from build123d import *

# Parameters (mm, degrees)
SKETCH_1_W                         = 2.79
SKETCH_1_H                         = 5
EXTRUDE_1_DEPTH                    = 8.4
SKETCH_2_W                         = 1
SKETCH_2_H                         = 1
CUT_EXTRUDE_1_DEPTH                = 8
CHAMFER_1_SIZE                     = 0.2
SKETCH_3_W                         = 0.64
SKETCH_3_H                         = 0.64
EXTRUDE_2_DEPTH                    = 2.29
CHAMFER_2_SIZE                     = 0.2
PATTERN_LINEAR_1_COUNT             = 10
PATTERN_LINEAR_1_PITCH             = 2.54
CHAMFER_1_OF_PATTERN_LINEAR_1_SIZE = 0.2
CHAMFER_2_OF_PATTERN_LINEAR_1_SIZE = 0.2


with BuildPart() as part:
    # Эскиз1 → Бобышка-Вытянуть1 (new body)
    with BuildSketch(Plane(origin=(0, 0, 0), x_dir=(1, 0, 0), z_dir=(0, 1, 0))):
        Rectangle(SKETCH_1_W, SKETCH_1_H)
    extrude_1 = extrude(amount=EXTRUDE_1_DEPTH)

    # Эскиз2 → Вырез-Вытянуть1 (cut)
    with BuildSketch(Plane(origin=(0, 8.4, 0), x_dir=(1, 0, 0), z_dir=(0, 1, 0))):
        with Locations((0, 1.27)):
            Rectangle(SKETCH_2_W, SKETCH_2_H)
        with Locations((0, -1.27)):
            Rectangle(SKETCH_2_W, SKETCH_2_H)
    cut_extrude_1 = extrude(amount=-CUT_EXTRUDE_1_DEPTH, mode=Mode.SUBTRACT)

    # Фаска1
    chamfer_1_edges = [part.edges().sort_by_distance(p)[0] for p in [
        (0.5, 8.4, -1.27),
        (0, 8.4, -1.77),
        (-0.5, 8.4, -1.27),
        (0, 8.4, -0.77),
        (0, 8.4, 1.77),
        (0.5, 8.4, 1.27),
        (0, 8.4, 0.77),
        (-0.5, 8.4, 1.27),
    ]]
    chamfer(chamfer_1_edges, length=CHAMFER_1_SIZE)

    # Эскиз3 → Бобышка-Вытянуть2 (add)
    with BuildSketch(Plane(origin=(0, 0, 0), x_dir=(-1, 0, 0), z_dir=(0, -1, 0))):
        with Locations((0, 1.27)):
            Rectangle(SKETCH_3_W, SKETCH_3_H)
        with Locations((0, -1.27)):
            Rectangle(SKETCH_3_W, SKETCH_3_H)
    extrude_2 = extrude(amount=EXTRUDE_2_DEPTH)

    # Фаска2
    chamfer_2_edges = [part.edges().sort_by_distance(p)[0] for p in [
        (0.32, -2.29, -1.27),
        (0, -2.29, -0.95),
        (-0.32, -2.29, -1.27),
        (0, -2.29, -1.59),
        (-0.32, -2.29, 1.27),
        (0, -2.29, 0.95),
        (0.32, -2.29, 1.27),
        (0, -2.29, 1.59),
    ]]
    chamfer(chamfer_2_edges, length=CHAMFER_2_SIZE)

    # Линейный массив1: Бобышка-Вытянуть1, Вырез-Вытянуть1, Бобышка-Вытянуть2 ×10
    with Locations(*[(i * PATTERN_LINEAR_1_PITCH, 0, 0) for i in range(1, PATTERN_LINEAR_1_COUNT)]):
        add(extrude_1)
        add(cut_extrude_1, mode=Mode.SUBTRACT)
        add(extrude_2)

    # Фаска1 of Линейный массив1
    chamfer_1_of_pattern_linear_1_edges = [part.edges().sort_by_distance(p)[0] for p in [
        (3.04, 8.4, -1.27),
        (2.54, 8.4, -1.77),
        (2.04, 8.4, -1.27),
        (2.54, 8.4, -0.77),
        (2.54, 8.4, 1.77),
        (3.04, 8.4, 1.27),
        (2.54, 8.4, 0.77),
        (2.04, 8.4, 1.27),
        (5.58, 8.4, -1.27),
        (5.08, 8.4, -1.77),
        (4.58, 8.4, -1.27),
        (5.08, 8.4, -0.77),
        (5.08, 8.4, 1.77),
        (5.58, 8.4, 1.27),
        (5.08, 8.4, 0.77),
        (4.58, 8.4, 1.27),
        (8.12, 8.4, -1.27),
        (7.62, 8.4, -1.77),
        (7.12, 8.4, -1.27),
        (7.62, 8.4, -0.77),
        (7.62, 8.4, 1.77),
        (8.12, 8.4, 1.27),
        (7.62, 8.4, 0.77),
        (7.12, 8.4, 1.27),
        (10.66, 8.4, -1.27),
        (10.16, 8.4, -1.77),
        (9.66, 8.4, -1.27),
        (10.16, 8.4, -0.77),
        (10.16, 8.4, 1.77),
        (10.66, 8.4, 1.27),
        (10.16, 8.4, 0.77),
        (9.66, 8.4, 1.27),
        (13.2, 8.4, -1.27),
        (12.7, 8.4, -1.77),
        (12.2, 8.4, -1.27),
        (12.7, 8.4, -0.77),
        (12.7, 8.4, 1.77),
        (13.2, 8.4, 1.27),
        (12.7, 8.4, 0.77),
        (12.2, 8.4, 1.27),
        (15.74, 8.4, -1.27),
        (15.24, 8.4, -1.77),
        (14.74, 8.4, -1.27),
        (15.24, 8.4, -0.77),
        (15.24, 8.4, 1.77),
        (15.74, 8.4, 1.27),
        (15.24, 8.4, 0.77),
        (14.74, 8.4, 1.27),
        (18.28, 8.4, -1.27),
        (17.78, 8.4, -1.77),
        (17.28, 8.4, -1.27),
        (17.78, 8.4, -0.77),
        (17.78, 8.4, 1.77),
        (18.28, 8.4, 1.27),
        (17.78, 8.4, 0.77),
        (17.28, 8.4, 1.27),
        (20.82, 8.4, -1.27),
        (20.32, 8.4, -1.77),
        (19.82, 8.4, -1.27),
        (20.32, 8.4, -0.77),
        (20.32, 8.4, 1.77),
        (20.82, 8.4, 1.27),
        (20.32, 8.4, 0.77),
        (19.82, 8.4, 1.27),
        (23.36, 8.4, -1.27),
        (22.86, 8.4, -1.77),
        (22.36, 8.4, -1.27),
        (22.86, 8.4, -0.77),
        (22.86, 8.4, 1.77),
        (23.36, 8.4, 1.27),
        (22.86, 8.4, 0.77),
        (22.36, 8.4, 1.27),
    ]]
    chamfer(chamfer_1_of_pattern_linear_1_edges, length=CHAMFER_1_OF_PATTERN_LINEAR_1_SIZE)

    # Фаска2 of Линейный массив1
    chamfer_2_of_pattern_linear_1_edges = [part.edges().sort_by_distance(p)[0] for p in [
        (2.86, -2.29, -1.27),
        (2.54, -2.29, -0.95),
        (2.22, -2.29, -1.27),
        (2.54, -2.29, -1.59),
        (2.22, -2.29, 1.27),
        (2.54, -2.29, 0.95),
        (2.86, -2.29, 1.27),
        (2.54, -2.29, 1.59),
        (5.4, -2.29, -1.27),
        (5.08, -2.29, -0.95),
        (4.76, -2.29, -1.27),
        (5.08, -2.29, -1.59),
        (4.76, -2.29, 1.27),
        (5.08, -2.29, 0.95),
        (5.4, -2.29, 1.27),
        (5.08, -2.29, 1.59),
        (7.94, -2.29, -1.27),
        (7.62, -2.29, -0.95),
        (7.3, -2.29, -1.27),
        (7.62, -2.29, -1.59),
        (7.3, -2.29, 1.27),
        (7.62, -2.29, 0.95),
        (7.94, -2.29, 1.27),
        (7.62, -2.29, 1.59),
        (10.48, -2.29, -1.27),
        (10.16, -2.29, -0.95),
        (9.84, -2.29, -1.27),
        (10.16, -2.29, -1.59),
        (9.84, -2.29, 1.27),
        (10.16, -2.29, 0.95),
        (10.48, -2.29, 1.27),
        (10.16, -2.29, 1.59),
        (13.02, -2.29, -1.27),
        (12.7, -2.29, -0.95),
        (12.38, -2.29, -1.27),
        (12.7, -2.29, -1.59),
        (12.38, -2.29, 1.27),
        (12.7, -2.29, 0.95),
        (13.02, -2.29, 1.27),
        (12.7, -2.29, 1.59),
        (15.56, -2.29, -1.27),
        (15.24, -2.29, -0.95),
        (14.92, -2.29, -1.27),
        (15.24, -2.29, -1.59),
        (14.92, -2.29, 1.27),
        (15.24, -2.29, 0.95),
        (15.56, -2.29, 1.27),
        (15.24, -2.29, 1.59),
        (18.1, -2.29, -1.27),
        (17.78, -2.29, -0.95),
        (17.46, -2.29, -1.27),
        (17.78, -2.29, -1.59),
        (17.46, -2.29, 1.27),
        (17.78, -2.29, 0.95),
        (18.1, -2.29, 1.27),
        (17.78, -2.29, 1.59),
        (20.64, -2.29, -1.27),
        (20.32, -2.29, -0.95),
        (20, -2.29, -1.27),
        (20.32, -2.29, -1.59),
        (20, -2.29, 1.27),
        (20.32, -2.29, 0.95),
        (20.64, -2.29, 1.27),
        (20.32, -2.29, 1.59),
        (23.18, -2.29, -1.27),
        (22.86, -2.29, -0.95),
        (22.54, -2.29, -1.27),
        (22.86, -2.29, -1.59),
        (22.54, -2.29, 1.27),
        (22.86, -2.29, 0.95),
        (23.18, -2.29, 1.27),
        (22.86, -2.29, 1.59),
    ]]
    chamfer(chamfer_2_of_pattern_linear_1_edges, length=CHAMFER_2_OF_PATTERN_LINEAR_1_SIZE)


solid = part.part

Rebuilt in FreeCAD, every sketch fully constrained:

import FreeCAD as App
import Part
import Sketcher
from FreeCAD import Vector


def edges_at(feature, points):
    """Names of the edges that pass closest to the given points."""
    edges = feature.Shape.Edges
    near = lambda p: min(range(len(edges)), key=lambda i: edges[i].distToShape(Part.Vertex(*p))[0])
    return sorted({f"Edge{near(p) + 1}" for p in points})


def add_polygon(sketch, points):
    """Adds a closed chain of lines whose ends are joined by coincident constraints."""
    first, n = sketch.GeometryCount, len(points)
    for a, b in zip(points, points[1:] + points[:1]):
        sketch.addGeometry(Part.LineSegment(App.Vector(*a, 0), App.Vector(*b, 0)), False)
    for i in range(n):
        sketch.addConstraint(Sketcher.Constraint("Coincident", first + i, 2, first + (i + 1) % n, 1))

doc = App.newDocument("Part")
body = doc.addObject("PartDesign::Body", "Body")

# Sketch on XZ plane
sketch1 = body.newObject("Sketcher::SketchObject", "Sketch")
sketch1.AttachmentSupport = (doc.getObject("XZ_Plane"), [""])
sketch1.MapMode = "FlatFace"
add_polygon(sketch1, [(-1.4, -2.5), (-1.4, 2.5), (1.4, 2.5), (1.4, -2.5)])  # lines 0-3
sketch1.addConstraint(Sketcher.Constraint("Vertical", 0))
sketch1.addConstraint(Sketcher.Constraint("Horizontal", 1))
sketch1.addConstraint(Sketcher.Constraint("Vertical", 2))
sketch1.addConstraint(Sketcher.Constraint("Horizontal", 3))
sketch1.addConstraint(Sketcher.Constraint("Symmetric", 0, 2, 2, 2, -1, 1))
sketch1.addConstraint(Sketcher.Constraint("DistanceY", 0, 1, 0, 2, 5.0))
sketch1.addConstraint(Sketcher.Constraint("DistanceX", 1, 1, 1, 2, 2.79))
pad1 = body.newObject("PartDesign::Pad", "Pad")
pad1.Profile = sketch1
pad1.Length = 8.4
pad1.Reversed = True

# Sketch on XZ plane
sketch2 = body.newObject("Sketcher::SketchObject", "Sketch001")
sketch2.AttachmentSupport = (doc.getObject("XZ_Plane"), [""])
sketch2.MapMode = "FlatFace"
sketch2.AttachmentOffset = App.Placement(Vector(0, 0, -8.4), App.Rotation())
add_polygon(sketch2, [(-0.5, -1.8), (-0.5, -0.8), (0.5, -0.8), (0.5, -1.8)])  # lines 0-3
add_polygon(sketch2, [(-0.5, 0.8), (-0.5, 1.8), (0.5, 1.8), (0.5, 0.8)])  # lines 4-7
sketch2.addConstraint(Sketcher.Constraint("Vertical", 0))
sketch2.addConstraint(Sketcher.Constraint("Horizontal", 1))
sketch2.addConstraint(Sketcher.Constraint("Vertical", 2))
sketch2.addConstraint(Sketcher.Constraint("Horizontal", 3))
sketch2.addConstraint(Sketcher.Constraint("Vertical", 4))
sketch2.addConstraint(Sketcher.Constraint("Horizontal", 5))
sketch2.addConstraint(Sketcher.Constraint("Vertical", 6))
sketch2.addConstraint(Sketcher.Constraint("Horizontal", 7))
sketch2.addConstraint(Sketcher.Constraint("Symmetric", 2, 2, 4, 2, -1, 1))
sketch2.addConstraint(Sketcher.Constraint("Symmetric", 0, 2, 6, 2, -1, 1))
sketch2.addConstraint(Sketcher.Constraint("Vertical", 3, 2, 4, 2))
sketch2.addConstraint(Sketcher.Constraint("Equal", 7, 0))
sketch2.addConstraint(Sketcher.Constraint("DistanceX", 1, 1, 1, 2, 1.0))
sketch2.addConstraint(Sketcher.Constraint("DistanceY", 0, 2, -1, 1, 0.77))
pocket1 = body.newObject("PartDesign::Pocket", "Pocket")
pocket1.Profile = sketch2
pocket1.Length = 8
pocket1.Reversed = True
doc.recompute()

chamfer = body.newObject("PartDesign::Chamfer", "Chamfer")
chamfer.Base = (pocket1, edges_at(pocket1, [
    (0.5, 8.4, -1.27),
    (0, 8.4, -1.77),
    (-0.5, 8.4, -1.27),
    (0, 8.4, -0.77),
    (0, 8.4, 1.77),
    (0.5, 8.4, 1.27),
    (0, 8.4, 0.77),
    (-0.5, 8.4, 1.27),
]))
chamfer.Size = 0.2

# Sketch on XZ plane
sketch3 = body.newObject("Sketcher::SketchObject", "Sketch002")
sketch3.AttachmentSupport = (doc.getObject("XZ_Plane"), [""])
sketch3.MapMode = "FlatFace"
add_polygon(sketch3, [(0.3, -1.6), (0.3, -0.9), (-0.3, -0.9), (-0.3, -1.6)])  # lines 0-3
add_polygon(sketch3, [(0.3, 0.9), (0.3, 1.6), (-0.3, 1.6), (-0.3, 0.9)])  # lines 4-7
sketch3.addConstraint(Sketcher.Constraint("Vertical", 0))
sketch3.addConstraint(Sketcher.Constraint("Horizontal", 1))
sketch3.addConstraint(Sketcher.Constraint("Vertical", 2))
sketch3.addConstraint(Sketcher.Constraint("Horizontal", 3))
sketch3.addConstraint(Sketcher.Constraint("Vertical", 4))
sketch3.addConstraint(Sketcher.Constraint("Horizontal", 5))
sketch3.addConstraint(Sketcher.Constraint("Vertical", 6))
sketch3.addConstraint(Sketcher.Constraint("Horizontal", 7))
sketch3.addConstraint(Sketcher.Constraint("Symmetric", 2, 2, 4, 2, -1, 1))
sketch3.addConstraint(Sketcher.Constraint("Symmetric", 0, 2, 6, 2, -1, 1))
sketch3.addConstraint(Sketcher.Constraint("Vertical", 3, 2, 4, 2))
sketch3.addConstraint(Sketcher.Constraint("Equal", 7, 0))
sketch3.addConstraint(Sketcher.Constraint("DistanceX", 1, 2, 1, 1, 0.64))
sketch3.addConstraint(Sketcher.Constraint("DistanceY", 1, 2, 6, 2, 1.9))
pad2 = body.newObject("PartDesign::Pad", "Pad001")
pad2.Profile = sketch3
pad2.Length = 2.29
doc.recompute()

chamfer2 = body.newObject("PartDesign::Chamfer", "Chamfer001")
chamfer2.Base = (pad2, edges_at(pad2, [
    (0.32, -2.29, -1.27),
    (0, -2.29, -0.95),
    (-0.32, -2.29, -1.27),
    (0, -2.29, -1.59),
    (-0.32, -2.29, 1.27),
    (0, -2.29, 0.95),
    (0.32, -2.29, 1.27),
    (0, -2.29, 1.59),
]))
chamfer2.Size = 0.2
doc.recompute()

linearpattern = body.newObject("PartDesign::LinearPattern", "LinearPattern")
linearpattern.Originals = [pad1, pocket1, pad2]
linearpattern.Direction = (doc.getObject("X_Axis"), [""])
linearpattern.Mode = "offset"
linearpattern.Offset = 2.54
linearpattern.Occurrences = 10
body.Tip = linearpattern
doc.recompute()

chamfer3 = body.newObject("PartDesign::Chamfer", "Chamfer002")
chamfer3.Base = (linearpattern, edges_at(linearpattern, [
    (3.04, 8.4, -1.27),
    (2.54, 8.4, -1.77),
    (2.04, 8.4, -1.27),
    (2.54, 8.4, -0.77),
    (2.54, 8.4, 1.77),
    (3.04, 8.4, 1.27),
    (2.54, 8.4, 0.77),
    (2.04, 8.4, 1.27),
    (5.58, 8.4, -1.27),
    (5.08, 8.4, -1.77),
    (4.58, 8.4, -1.27),
    (5.08, 8.4, -0.77),
    (5.08, 8.4, 1.77),
    (5.58, 8.4, 1.27),
    (5.08, 8.4, 0.77),
    (4.58, 8.4, 1.27),
    (8.12, 8.4, -1.27),
    (7.62, 8.4, -1.77),
    (7.12, 8.4, -1.27),
    (7.62, 8.4, -0.77),
    (7.62, 8.4, 1.77),
    (8.12, 8.4, 1.27),
    (7.62, 8.4, 0.77),
    (7.12, 8.4, 1.27),
    (10.66, 8.4, -1.27),
    (10.16, 8.4, -1.77),
    (9.66, 8.4, -1.27),
    (10.16, 8.4, -0.77),
    (10.16, 8.4, 1.77),
    (10.66, 8.4, 1.27),
    (10.16, 8.4, 0.77),
    (9.66, 8.4, 1.27),
    (13.2, 8.4, -1.27),
    (12.7, 8.4, -1.77),
    (12.2, 8.4, -1.27),
    (12.7, 8.4, -0.77),
    (12.7, 8.4, 1.77),
    (13.2, 8.4, 1.27),
    (12.7, 8.4, 0.77),
    (12.2, 8.4, 1.27),
    (15.74, 8.4, -1.27),
    (15.24, 8.4, -1.77),
    (14.74, 8.4, -1.27),
    (15.24, 8.4, -0.77),
    (15.24, 8.4, 1.77),
    (15.74, 8.4, 1.27),
    (15.24, 8.4, 0.77),
    (14.74, 8.4, 1.27),
    (18.28, 8.4, -1.27),
    (17.78, 8.4, -1.77),
    (17.28, 8.4, -1.27),
    (17.78, 8.4, -0.77),
    (17.78, 8.4, 1.77),
    (18.28, 8.4, 1.27),
    (17.78, 8.4, 0.77),
    (17.28, 8.4, 1.27),
    (20.82, 8.4, -1.27),
    (20.32, 8.4, -1.77),
    (19.82, 8.4, -1.27),
    (20.32, 8.4, -0.77),
    (20.32, 8.4, 1.77),
    (20.82, 8.4, 1.27),
    (20.32, 8.4, 0.77),
    (19.82, 8.4, 1.27),
    (23.36, 8.4, -1.27),
    (22.86, 8.4, -1.77),
    (22.36, 8.4, -1.27),
    (22.86, 8.4, -0.77),
    (22.86, 8.4, 1.77),
    (23.36, 8.4, 1.27),
    (22.86, 8.4, 0.77),
    (22.36, 8.4, 1.27),
]))
chamfer3.Size = 0.2
doc.recompute()

chamfer4 = body.newObject("PartDesign::Chamfer", "Chamfer003")
chamfer4.Base = (chamfer3, edges_at(chamfer3, [
    (2.86, -2.29, -1.27),
    (2.54, -2.29, -0.95),
    (2.22, -2.29, -1.27),
    (2.54, -2.29, -1.59),
    (2.22, -2.29, 1.27),
    (2.54, -2.29, 0.95),
    (2.86, -2.29, 1.27),
    (2.54, -2.29, 1.59),
    (5.4, -2.29, -1.27),
    (5.08, -2.29, -0.95),
    (4.76, -2.29, -1.27),
    (5.08, -2.29, -1.59),
    (4.76, -2.29, 1.27),
    (5.08, -2.29, 0.95),
    (5.4, -2.29, 1.27),
    (5.08, -2.29, 1.59),
    (7.94, -2.29, -1.27),
    (7.62, -2.29, -0.95),
    (7.3, -2.29, -1.27),
    (7.62, -2.29, -1.59),
    (7.3, -2.29, 1.27),
    (7.62, -2.29, 0.95),
    (7.94, -2.29, 1.27),
    (7.62, -2.29, 1.59),
    (10.48, -2.29, -1.27),
    (10.16, -2.29, -0.95),
    (9.84, -2.29, -1.27),
    (10.16, -2.29, -1.59),
    (9.84, -2.29, 1.27),
    (10.16, -2.29, 0.95),
    (10.48, -2.29, 1.27),
    (10.16, -2.29, 1.59),
    (13.02, -2.29, -1.27),
    (12.7, -2.29, -0.95),
    (12.38, -2.29, -1.27),
    (12.7, -2.29, -1.59),
    (12.38, -2.29, 1.27),
    (12.7, -2.29, 0.95),
    (13.02, -2.29, 1.27),
    (12.7, -2.29, 1.59),
    (15.56, -2.29, -1.27),
    (15.24, -2.29, -0.95),
    (14.92, -2.29, -1.27),
    (15.24, -2.29, -1.59),
    (14.92, -2.29, 1.27),
    (15.24, -2.29, 0.95),
    (15.56, -2.29, 1.27),
    (15.24, -2.29, 1.59),
    (18.1, -2.29, -1.27),
    (17.78, -2.29, -0.95),
    (17.46, -2.29, -1.27),
    (17.78, -2.29, -1.59),
    (17.46, -2.29, 1.27),
    (17.78, -2.29, 0.95),
    (18.1, -2.29, 1.27),
    (17.78, -2.29, 1.59),
    (20.64, -2.29, -1.27),
    (20.32, -2.29, -0.95),
    (20, -2.29, -1.27),
    (20.32, -2.29, -1.59),
    (20, -2.29, 1.27),
    (20.32, -2.29, 0.95),
    (20.64, -2.29, 1.27),
    (20.32, -2.29, 1.59),
    (23.18, -2.29, -1.27),
    (22.86, -2.29, -0.95),
    (22.54, -2.29, -1.27),
    (22.86, -2.29, -1.59),
    (22.54, -2.29, 1.27),
    (22.86, -2.29, 0.95),
    (23.18, -2.29, 1.27),
    (22.86, -2.29, 1.59),
]))
chamfer4.Size = 0.2

doc.recompute()
